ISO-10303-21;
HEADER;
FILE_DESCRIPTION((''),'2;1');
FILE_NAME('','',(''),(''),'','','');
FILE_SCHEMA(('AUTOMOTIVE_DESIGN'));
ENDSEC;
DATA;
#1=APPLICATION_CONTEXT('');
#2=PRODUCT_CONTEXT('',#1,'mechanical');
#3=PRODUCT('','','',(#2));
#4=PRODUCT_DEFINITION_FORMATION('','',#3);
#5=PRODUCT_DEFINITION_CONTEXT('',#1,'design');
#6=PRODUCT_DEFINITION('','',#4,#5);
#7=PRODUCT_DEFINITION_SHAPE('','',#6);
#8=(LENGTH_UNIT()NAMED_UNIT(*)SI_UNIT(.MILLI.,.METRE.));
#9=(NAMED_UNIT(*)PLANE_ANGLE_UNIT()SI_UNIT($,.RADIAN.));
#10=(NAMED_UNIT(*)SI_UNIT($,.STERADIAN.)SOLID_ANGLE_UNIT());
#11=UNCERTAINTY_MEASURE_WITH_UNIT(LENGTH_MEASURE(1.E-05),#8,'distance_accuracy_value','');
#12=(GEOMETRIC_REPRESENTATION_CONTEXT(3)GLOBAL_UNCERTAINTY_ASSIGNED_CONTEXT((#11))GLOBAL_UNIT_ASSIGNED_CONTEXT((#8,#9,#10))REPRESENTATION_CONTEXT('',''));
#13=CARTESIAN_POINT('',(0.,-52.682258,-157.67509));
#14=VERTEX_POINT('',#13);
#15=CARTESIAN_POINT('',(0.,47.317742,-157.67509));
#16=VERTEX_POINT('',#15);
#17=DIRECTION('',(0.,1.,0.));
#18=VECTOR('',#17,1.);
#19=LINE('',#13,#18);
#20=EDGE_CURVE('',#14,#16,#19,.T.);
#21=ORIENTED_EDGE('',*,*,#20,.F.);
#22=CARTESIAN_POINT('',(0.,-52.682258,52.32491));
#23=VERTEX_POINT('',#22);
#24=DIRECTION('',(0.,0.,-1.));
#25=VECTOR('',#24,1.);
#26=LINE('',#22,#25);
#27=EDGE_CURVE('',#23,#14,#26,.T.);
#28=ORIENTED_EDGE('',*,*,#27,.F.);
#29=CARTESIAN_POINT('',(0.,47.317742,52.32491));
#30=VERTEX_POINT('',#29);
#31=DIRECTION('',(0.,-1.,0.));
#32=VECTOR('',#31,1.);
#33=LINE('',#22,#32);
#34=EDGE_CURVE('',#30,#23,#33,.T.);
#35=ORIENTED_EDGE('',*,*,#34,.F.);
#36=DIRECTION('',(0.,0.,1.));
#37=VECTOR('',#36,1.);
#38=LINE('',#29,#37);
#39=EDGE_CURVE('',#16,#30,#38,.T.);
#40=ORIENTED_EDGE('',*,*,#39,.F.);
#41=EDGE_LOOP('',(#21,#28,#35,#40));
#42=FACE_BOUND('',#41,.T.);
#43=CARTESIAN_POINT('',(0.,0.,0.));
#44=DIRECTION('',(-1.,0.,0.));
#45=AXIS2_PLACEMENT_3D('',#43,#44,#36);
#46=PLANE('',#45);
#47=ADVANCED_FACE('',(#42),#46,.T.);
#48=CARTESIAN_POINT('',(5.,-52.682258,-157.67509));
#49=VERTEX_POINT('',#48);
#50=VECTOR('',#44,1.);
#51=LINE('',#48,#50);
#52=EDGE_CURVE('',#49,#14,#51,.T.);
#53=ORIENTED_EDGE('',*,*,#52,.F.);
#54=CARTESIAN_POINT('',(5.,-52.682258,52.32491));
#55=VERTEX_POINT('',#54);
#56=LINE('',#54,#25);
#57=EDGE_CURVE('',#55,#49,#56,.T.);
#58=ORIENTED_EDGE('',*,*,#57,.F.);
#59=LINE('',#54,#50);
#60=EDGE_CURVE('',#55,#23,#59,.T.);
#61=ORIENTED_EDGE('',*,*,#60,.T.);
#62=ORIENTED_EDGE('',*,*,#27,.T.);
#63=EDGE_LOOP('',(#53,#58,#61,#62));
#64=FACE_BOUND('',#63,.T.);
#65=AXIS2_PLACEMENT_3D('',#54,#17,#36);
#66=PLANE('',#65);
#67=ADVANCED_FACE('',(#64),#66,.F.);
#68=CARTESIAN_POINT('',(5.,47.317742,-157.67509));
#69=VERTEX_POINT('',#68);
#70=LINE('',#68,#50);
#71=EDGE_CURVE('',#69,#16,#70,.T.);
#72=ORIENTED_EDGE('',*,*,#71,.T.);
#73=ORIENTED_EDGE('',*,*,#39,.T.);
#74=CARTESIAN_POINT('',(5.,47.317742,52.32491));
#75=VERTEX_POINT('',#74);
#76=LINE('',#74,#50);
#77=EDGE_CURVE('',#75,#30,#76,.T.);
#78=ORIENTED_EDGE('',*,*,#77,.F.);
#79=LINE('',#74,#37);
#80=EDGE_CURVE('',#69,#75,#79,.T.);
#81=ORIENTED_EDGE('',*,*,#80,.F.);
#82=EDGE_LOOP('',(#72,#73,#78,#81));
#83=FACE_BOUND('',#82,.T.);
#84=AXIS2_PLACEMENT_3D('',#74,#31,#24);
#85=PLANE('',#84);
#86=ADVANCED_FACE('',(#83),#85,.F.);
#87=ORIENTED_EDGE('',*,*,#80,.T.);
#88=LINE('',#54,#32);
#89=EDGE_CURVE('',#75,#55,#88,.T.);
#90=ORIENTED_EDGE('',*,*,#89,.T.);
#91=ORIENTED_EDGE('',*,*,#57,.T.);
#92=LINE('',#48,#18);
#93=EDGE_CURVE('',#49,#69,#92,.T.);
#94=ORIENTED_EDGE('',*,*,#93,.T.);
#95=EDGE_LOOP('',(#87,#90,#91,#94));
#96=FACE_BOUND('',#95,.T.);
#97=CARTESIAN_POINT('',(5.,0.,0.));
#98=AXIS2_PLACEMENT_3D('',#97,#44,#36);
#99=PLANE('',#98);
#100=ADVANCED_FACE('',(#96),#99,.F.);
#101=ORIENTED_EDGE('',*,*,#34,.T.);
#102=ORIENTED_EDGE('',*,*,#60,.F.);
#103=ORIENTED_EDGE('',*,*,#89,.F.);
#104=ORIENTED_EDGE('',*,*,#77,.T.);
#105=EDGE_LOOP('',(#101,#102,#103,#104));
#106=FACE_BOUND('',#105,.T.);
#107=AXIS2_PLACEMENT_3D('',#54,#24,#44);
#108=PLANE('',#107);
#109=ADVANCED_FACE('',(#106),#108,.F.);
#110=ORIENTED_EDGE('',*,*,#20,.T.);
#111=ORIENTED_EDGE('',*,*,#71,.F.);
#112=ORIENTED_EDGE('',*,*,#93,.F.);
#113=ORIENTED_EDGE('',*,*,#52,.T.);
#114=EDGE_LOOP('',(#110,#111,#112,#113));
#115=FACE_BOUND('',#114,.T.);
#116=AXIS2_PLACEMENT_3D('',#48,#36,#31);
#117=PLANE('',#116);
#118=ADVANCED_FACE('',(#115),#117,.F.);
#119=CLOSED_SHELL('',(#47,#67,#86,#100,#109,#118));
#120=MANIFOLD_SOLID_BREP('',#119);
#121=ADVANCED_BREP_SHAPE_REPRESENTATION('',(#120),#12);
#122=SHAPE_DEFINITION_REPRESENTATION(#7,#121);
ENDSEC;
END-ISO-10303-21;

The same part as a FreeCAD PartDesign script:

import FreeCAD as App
import Part
import Sketcher

V = App.Vector


def add_polygon(sketch, points):
    """Adds a closed chain of lines whose ends are joined by coincident constraints."""
    first, n = sketch.GeometryCount, len(points)
    for a, b in zip(points, points[1:] + points[:1]):
        sketch.addGeometry(Part.LineSegment(App.Vector(*a, 0), App.Vector(*b, 0)), False)
    for i in range(n):
        sketch.addConstraint(Sketcher.Constraint("Coincident", first + i, 2, first + (i + 1) % n, 1))

doc = App.newDocument("Part")
body = doc.addObject("PartDesign::Body", "Body")

# Sketch on YZ plane
sketch1 = body.newObject("Sketcher::SketchObject", "Sketch")
sketch1.AttachmentSupport = (doc.getObject("YZ_Plane"), [""])
sketch1.MapMode = "FlatFace"
add_polygon(sketch1, [(47, 52), (-53, 52), (-53, -158), (47, -158)])  # lines 0-3
sketch1.addConstraint(Sketcher.Constraint("Horizontal", 0))
sketch1.addConstraint(Sketcher.Constraint("Vertical", 1))
sketch1.addConstraint(Sketcher.Constraint("Horizontal", 2))
sketch1.addConstraint(Sketcher.Constraint("Vertical", 3))
sketch1.addConstraint(Sketcher.Constraint("DistanceX", 0, 2, 0, 1, 100.0))
sketch1.addConstraint(Sketcher.Constraint("DistanceY", 1, 2, 1, 1, 210.0))
sketch1.addConstraint(Sketcher.Constraint("DistanceX", 0, 2, -1, 1, 52.682258))
sketch1.addConstraint(Sketcher.Constraint("DistanceY", -1, 1, 0, 2, 52.32491))
pad1 = body.newObject("PartDesign::Pad", "Pad")
pad1.Profile = sketch1
pad1.Length = 5

doc.recompute()
